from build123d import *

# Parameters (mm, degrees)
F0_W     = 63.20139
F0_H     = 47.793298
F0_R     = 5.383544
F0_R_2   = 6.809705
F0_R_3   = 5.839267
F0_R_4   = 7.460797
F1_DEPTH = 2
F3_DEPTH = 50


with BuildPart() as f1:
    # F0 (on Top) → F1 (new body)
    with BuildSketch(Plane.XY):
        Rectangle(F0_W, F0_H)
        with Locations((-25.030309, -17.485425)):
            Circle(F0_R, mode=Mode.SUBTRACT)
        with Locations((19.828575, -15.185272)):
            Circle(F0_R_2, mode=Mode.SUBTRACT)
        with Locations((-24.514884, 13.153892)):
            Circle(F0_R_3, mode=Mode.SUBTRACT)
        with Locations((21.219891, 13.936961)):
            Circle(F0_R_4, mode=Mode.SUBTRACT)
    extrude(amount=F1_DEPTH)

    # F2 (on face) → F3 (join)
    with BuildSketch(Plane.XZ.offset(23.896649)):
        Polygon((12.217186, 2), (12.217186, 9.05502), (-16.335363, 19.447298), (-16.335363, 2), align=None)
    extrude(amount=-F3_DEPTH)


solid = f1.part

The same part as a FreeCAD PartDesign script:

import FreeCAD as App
import Part
import Sketcher

V = App.Vector
Q = App.Units.Quantity


def add_polygon(sketch, points):
    """Adds a closed chain of lines whose ends are joined by coincident constraints."""
    first, n = sketch.GeometryCount, len(points)
    for a, b in zip(points, points[1:] + points[:1]):
        sketch.addGeometry(Part.LineSegment(App.Vector(*a, 0), App.Vector(*b, 0)), False)
    for i in range(n):
        sketch.addConstraint(Sketcher.Constraint("Coincident", first + i, 2, first + (i + 1) % n, 1))

doc = App.newDocument("Part")
body = doc.addObject("PartDesign::Body", "Body")

sketch1 = doc.addObject("Sketcher::SketchObject", "Sketch")
body.addObject(sketch1)
sketch1.AttachmentSupport = (doc.XY_Plane, [""])
sketch1.MapMode = "FlatFace"
add_polygon(sketch1, [(-31.600695, 23.896649), (-31.600695, -23.896649), (31.600695, -23.896649), (31.600695, 23.896649)])
sketch1.addGeometry(Part.Circle(V(-25.030309, -17.485425, 0), V(0, 0, 1), 5.383544), False)
sketch1.addGeometry(Part.Circle(V(19.828575, -15.185272, 0), V(0, 0, 1), 6.809705), False)
sketch1.addGeometry(Part.Circle(V(-24.514884, 13.153892, 0), V(0, 0, 1), 5.839267), False)
sketch1.addGeometry(Part.Circle(V(21.219891, 13.936961, 0), V(0, 0, 1), 7.460797), False)
sketch1.addConstraint([
    Sketcher.Constraint("Vertical", 0),
    Sketcher.Constraint("Horizontal", 1),
    Sketcher.Constraint("Vertical", 2),
    Sketcher.Constraint("Horizontal", 3),
    Sketcher.Constraint("Symmetric", 0, 2, 2, 2, -1, 1),
    Sketcher.Constraint("Diameter", 5, 13.61941),
    Sketcher.Constraint("Diameter", 4, 10.767088),
    Sketcher.Constraint("Diameter", 6, 11.678534),
    Sketcher.Constraint("Diameter", 7, 14.921594),
    Sketcher.Constraint("DistanceX", 1, 1, 1, 2, 63.20139),
    Sketcher.Constraint("DistanceX", 4, 3, 7, 3, 46.2502),
    Sketcher.Constraint("DistanceY", 0, 2, 0, 1, 47.793298),
    Sketcher.Constraint("DistanceX", 4, 3, -1, 1, 25.030309),
    Sketcher.Constraint("DistanceY", -1, 1, 7, 3, 13.936961),
    Sketcher.Constraint("DistanceX", 6, 3, 5, 3, 44.343459),
    Sketcher.Constraint("DistanceY", 6, 3, 7, 3, 0.783069),
    Sketcher.Constraint("DistanceX", 0, 2, 6, 3, 7.085811),
    Sketcher.Constraint("DistanceY", 5, 3, 2, 2, 39.081921),
    Sketcher.Constraint("DistanceY", 4, 3, -1, 1, 17.485425),
])
pad1 = doc.addObject("PartDesign::Pad", "Pad")
body.addObject(pad1)
pad1.Profile = sketch1
pad1.Length = 2

sketch2 = doc.addObject("Sketcher::SketchObject", "Sketch001")
body.addObject(sketch2)
sketch2.AttachmentSupport = (doc.XZ_Plane, [""])
sketch2.MapMode = "FlatFace"
sketch2.AttachmentOffset = App.Placement(V(0, 0, 23.896649), App.Rotation())
add_polygon(sketch2, [(12.217186, 2), (12.217186, 9.05502), (-16.335363, 19.447298), (-16.335363, 2)])
sketch2.addConstraint([
    Sketcher.Constraint("Vertical", 0),
    Sketcher.Constraint("Vertical", 2),
    Sketcher.Constraint("Horizontal", 3),
    Sketcher.Constraint("Angle", 1, Q("160 deg")),
    Sketcher.Constraint("DistanceY", -1, 1, 2, 2, 2.0),
    Sketcher.Constraint("DistanceY", 2, 2, 2, 1, 17.447298),
    Sketcher.Constraint("DistanceX", 3, 1, 3, 2, 28.552549),
    Sketcher.Constraint("DistanceX", -1, 1, 0, 2, 12.217186),
])
pad2 = doc.addObject("PartDesign::Pad", "Pad001")
body.addObject(pad2)
pad2.Profile = sketch2
pad2.Length = 50
pad2.Reversed = True

doc.recompute()
